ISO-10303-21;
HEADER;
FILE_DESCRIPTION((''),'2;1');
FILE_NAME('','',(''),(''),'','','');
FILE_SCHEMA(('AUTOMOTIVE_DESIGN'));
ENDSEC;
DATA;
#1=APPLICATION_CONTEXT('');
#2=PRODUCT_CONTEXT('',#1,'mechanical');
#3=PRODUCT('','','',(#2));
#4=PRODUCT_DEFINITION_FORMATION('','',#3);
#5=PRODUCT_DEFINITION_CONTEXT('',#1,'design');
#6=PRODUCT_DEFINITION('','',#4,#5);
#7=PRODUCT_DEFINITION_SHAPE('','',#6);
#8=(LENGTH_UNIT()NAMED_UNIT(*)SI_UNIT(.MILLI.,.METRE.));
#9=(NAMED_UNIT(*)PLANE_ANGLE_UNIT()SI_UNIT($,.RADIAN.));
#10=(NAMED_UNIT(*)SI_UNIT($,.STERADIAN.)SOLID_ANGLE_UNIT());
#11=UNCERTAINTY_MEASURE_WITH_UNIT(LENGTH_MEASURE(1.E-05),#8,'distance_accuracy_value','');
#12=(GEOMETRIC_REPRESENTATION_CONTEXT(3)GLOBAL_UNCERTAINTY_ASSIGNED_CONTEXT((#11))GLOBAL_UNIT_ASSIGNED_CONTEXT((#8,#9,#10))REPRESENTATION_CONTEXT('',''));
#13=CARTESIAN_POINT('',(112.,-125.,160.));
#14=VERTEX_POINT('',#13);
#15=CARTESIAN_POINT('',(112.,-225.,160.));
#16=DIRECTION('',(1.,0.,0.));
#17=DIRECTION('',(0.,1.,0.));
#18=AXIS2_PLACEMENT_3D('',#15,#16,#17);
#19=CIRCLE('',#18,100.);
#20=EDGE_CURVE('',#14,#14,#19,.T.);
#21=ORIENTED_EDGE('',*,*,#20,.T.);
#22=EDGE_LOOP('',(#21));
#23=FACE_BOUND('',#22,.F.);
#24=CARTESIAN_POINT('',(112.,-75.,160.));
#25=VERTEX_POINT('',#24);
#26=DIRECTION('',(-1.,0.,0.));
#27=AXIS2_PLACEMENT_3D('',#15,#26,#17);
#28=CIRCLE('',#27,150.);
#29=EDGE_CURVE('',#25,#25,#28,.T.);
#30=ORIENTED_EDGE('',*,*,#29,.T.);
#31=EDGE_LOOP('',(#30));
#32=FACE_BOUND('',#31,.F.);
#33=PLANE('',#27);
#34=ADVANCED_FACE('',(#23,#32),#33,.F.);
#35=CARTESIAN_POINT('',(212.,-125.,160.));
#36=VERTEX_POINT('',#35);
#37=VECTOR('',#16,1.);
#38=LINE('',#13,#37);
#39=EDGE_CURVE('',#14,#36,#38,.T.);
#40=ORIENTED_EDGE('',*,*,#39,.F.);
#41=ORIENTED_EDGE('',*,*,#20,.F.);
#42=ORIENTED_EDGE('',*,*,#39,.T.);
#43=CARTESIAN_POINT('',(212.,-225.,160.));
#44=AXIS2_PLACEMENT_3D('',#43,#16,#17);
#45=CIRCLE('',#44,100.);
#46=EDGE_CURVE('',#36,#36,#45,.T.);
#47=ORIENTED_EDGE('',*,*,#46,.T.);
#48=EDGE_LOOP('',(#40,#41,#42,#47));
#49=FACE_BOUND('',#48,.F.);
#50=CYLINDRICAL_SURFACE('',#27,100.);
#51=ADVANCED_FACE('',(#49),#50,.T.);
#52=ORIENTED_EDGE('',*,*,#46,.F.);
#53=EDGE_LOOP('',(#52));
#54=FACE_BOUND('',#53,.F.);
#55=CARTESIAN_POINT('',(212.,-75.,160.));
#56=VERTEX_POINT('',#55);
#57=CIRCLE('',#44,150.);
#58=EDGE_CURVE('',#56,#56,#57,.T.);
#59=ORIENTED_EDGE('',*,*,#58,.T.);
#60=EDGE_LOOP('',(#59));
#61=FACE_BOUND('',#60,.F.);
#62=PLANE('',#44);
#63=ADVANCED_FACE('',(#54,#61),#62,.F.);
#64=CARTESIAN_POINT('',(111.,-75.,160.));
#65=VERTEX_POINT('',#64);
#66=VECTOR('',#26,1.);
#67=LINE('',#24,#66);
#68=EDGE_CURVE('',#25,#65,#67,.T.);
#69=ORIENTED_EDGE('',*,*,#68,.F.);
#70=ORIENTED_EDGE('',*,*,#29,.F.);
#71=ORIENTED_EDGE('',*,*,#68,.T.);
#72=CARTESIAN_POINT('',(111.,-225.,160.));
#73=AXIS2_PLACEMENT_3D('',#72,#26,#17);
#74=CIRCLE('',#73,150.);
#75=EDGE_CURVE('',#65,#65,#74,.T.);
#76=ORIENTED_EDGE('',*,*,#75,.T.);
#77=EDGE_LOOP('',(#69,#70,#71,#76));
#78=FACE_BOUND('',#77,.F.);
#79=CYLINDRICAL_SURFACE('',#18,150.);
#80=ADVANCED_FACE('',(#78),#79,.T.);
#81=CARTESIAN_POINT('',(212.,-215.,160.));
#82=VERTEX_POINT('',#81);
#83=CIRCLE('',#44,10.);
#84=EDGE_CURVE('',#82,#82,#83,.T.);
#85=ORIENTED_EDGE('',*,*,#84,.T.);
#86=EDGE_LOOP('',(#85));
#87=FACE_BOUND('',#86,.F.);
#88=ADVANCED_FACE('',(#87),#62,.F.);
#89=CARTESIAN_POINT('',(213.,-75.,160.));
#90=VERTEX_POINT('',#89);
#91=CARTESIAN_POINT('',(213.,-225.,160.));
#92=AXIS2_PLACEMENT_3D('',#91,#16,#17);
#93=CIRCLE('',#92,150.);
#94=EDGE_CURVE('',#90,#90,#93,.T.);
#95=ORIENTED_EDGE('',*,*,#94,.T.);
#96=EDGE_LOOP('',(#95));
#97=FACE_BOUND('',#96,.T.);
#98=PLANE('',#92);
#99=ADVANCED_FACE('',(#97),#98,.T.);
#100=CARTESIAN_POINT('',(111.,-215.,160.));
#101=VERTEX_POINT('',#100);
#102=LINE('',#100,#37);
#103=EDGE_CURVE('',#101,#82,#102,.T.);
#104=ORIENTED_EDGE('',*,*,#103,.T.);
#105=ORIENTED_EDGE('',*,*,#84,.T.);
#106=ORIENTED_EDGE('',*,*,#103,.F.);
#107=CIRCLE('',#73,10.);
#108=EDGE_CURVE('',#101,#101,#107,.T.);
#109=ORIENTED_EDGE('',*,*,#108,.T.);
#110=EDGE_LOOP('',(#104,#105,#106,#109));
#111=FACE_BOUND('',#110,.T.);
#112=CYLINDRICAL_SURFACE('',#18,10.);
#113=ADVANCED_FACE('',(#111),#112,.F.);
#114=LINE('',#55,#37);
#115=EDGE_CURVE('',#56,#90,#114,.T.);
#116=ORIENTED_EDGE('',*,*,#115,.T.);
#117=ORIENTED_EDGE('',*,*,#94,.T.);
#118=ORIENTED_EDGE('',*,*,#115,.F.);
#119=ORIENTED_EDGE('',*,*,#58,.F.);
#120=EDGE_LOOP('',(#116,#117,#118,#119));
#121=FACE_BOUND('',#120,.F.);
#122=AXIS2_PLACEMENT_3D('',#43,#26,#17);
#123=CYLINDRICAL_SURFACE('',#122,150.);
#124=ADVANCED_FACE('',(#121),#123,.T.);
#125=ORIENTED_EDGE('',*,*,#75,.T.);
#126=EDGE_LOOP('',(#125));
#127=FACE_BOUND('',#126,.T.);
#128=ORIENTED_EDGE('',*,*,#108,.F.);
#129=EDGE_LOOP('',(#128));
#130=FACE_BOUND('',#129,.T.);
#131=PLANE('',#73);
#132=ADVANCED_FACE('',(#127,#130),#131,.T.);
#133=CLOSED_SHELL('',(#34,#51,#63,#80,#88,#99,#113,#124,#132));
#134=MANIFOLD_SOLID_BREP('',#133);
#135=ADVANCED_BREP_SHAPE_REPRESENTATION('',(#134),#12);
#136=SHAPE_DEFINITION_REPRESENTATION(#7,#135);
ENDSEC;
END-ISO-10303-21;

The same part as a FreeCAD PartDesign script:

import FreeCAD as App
import Part
import Sketcher
from FreeCAD import Vector
Q = App.Units.Quantity

doc = App.newDocument("Part")
body = doc.addObject("PartDesign::Body", "Body")

sketch1 = body.newObject("Sketcher::SketchObject", "Sketch")
sketch1.AttachmentSupport = (doc.getObject("YZ_Plane"), [""])
sketch1.MapMode = "FlatFace"
sketch1.addGeometry(Part.Circle(Vector(0, 0, 0), Vector(0, 0, 1), 100), False)
sketch1.addGeometry(Part.Circle(Vector(0, 0, 0), Vector(0, 0, 1), 10), False)
sketch1.addConstraint(Sketcher.Constraint("Coincident", 0, 3, -1, 1))
sketch1.addConstraint(Sketcher.Constraint("Coincident", 1, 3, -1, 1))
sketch1.addConstraint(Sketcher.Constraint("Diameter", 0, Q("200 mm")))
sketch1.addConstraint(Sketcher.Constraint("Diameter", 1, Q("20 mm")))
pad1 = body.newObject("PartDesign::Pad", "Pad")
pad1.Profile = sketch1
pad1.Length = 100

sketch2 = body.newObject("Sketcher::SketchObject", "Sketch001")
sketch2.AttachmentSupport = (doc.getObject("YZ_Plane"), [""])
sketch2.MapMode = "FlatFace"
sketch2.addGeometry(Part.Circle(Vector(0, 0, 0), Vector(0, 0, 1), 150), False)
sketch2.addGeometry(Part.Circle(Vector(0, 0, 0), Vector(0, 0, 1), 10), False)
sketch2.addConstraint(Sketcher.Constraint("Coincident", 0, 3, -1, 1))
sketch2.addConstraint(Sketcher.Constraint("Coincident", 1, 3, -1, 1))
sketch2.addConstraint(Sketcher.Constraint("Diameter", 0, Q("300 mm")))
sketch2.addConstraint(Sketcher.Constraint("Diameter", 1, Q("20 mm")))
pad2 = body.newObject("PartDesign::Pad", "Pad001")
pad2.Profile = sketch2
pad2.Length = 1
pad2.Reversed = True

sketch3 = body.newObject("Sketcher::SketchObject", "Sketch002")
sketch3.AttachmentSupport = (doc.getObject("YZ_Plane"), [""])
sketch3.MapMode = "FlatFace"
sketch3.AttachmentOffset = App.Placement(Vector(0, 0, 100), App.Rotation())
sketch3.addGeometry(Part.Circle(Vector(0, 0, 0), Vector(0, 0, 1), 150), False)
sketch3.addConstraint(Sketcher.Constraint("Coincident", 0, 3, -1, 1))
sketch3.addConstraint(Sketcher.Constraint("Diameter", 0, Q("300 mm")))
pad3 = body.newObject("PartDesign::Pad", "Pad002")
pad3.Profile = sketch3
pad3.Length = 1
body2 = doc.addObject("PartDesign::Body", "Body001")
doc.recompute()

body.Placement = App.Placement(Vector(112, -225, 160), App.Rotation(Vector(0, 0, 1), 0))
boolean = body2.newObject("PartDesign::Boolean", "Boolean")
boolean.Type = "Fuse"
boolean.addObjects([body])

doc.recompute()
